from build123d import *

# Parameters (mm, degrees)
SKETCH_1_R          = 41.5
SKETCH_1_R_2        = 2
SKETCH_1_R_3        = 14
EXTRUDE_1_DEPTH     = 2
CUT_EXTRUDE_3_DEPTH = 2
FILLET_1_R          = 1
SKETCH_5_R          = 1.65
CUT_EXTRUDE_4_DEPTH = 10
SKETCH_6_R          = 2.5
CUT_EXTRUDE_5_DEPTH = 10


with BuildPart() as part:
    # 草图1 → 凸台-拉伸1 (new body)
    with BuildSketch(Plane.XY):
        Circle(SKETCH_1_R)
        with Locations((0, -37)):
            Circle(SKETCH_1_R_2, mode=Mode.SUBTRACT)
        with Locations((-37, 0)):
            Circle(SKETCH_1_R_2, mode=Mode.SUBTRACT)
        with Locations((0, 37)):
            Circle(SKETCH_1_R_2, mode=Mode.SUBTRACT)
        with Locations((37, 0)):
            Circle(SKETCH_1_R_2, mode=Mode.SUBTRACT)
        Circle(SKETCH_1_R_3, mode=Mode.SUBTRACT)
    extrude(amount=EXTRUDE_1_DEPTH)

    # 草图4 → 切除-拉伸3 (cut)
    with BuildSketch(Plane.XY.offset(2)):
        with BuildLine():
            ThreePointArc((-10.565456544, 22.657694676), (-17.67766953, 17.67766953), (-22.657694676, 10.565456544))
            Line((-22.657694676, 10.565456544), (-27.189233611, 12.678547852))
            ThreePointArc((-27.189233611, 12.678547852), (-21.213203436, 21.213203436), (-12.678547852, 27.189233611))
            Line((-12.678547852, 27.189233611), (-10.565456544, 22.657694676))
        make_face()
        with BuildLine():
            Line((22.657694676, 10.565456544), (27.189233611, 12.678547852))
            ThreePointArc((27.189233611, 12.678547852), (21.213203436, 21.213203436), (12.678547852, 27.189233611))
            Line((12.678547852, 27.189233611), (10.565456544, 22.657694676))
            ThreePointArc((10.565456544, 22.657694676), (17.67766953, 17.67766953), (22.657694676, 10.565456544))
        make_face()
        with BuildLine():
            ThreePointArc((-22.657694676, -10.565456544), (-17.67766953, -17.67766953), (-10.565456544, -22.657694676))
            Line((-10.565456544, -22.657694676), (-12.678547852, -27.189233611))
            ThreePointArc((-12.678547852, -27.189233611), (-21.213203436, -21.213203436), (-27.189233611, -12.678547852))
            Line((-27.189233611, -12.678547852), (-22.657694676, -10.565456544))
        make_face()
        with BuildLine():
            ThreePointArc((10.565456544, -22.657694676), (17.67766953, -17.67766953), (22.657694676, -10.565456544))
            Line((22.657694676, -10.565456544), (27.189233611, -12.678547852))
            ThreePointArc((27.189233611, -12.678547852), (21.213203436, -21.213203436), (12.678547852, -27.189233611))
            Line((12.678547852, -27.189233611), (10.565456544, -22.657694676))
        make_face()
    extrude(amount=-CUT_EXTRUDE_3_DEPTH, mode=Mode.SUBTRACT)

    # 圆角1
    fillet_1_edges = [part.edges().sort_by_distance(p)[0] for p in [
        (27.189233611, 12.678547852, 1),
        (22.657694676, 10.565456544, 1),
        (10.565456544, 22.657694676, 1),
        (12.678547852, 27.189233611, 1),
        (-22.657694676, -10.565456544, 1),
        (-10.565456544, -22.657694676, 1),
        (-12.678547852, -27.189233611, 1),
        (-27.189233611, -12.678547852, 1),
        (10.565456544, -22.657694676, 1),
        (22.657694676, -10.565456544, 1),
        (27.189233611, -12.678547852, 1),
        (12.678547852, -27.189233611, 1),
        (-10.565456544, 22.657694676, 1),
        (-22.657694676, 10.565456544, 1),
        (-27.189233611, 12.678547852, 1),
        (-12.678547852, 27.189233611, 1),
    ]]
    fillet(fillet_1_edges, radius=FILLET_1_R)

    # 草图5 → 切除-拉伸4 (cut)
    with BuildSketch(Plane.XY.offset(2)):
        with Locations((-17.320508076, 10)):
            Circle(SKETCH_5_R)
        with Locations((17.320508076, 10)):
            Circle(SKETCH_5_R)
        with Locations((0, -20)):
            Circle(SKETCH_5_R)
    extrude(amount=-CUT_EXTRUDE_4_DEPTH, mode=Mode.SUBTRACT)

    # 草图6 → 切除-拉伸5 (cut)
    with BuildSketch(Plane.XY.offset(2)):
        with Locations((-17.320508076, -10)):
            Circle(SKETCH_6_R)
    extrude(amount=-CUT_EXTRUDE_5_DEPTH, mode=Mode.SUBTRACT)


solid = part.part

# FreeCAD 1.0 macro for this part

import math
import FreeCAD as App
import Part
import Sketcher
from FreeCAD import Vector
Q = App.Units.Quantity


def edges_at(feature, points):
    """Names of the edges that pass closest to the given points."""
    edges = feature.Shape.Edges
    near = lambda p: min(range(len(edges)), key=lambda i: edges[i].distToShape(Part.Vertex(*p))[0])
    return sorted({f"Edge{near(p) + 1}" for p in points})

doc = App.newDocument("Part")
body = doc.addObject("PartDesign::Body", "Body")

sketch1 = body.newObject("Sketcher::SketchObject", "Sketch")
sketch1.AttachmentSupport = (doc.getObject("XY_Plane"), [""])
sketch1.MapMode = "FlatFace"
sketch1.addGeometry([
    Part.Circle(Vector(0, 0, 0), Vector(0, 0, 1), 41.5),
    Part.Circle(Vector(0, -37, 0), Vector(0, 0, 1), 2),
    Part.Circle(Vector(-37, 0, 0), Vector(0, 0, 1), 2),
    Part.Circle(Vector(0, 0, 0), Vector(0, 0, 1), 14),
    Part.Circle(Vector(37, 0, 0), Vector(0, 0, 1), 2),
    Part.Circle(Vector(0, 37, 0), Vector(0, 0, 1), 2),
], False)
sketch1.addConstraint([
    Sketcher.Constraint("Coincident", 0, 3, -1, 1),
    Sketcher.Constraint("Coincident", 3, 3, -1, 1),
    Sketcher.Constraint("Equal", 1, 2),
    Sketcher.Constraint("Equal", 2, 4),
    Sketcher.Constraint("Equal", 4, 5),
    Sketcher.Constraint("Symmetric", 2, 3, 4, 3, -1, 1),
    Sketcher.Constraint("Symmetric", 1, 3, 5, 3, -1, 1),
    Sketcher.Constraint("PointOnObject", 1, 3, -2),
    Sketcher.Constraint("PointOnObject", 2, 3, -1),
    Sketcher.Constraint("Diameter", 0, Q("83 mm")),
    Sketcher.Constraint("Diameter", 1, Q("4 mm")),
    Sketcher.Constraint("Diameter", 3, Q("28 mm")),
    Sketcher.Constraint("DistanceY", 1, 3, -1, 1, Q("37 mm")),
    Sketcher.Constraint("DistanceX", 2, 3, -1, 1, Q("37 mm")),
])
pad1 = body.newObject("PartDesign::Pad", "Pad")
pad1.Profile = sketch1
pad1.Length = 2

sketch2 = body.newObject("Sketcher::SketchObject", "Sketch001")
sketch2.AttachmentSupport = (doc.getObject("XY_Plane"), [""])
sketch2.MapMode = "FlatFace"
sketch2.AttachmentOffset = App.Placement(Vector(0, 0, 2), App.Rotation())
sketch2.addGeometry([
    Part.ArcOfCircle(Part.Circle(Vector(0, 0, 0), Vector(0, 0, 1), 25), math.radians(115), math.radians(155)),
    Part.LineSegment(Vector(-10.6, 22.7, 0), Vector(-12.7, 27.2, 0)),
    Part.ArcOfCircle(Part.Circle(Vector(0, 0, 0), Vector(0, 0, 1), 30), math.radians(115), math.radians(155)),
    Part.LineSegment(Vector(-27.2, 12.7, 0), Vector(-22.7, 10.6, 0)),
    Part.LineSegment(Vector(22.7, 10.6, 0), Vector(27.2, 12.7, 0)),
    Part.ArcOfCircle(Part.Circle(Vector(0, 0, 0), Vector(0, 0, 1), 30), math.radians(25), math.radians(65)),
    Part.LineSegment(Vector(12.7, 27.2, 0), Vector(10.6, 22.7, 0)),
    Part.ArcOfCircle(Part.Circle(Vector(0, 0, 0), Vector(0, 0, 1), 25), math.radians(25), math.radians(65)),
    Part.ArcOfCircle(Part.Circle(Vector(0, 0, 0), Vector(0, 0, 1), 25), math.radians(-155), math.radians(-115)),
    Part.LineSegment(Vector(-22.7, -10.6, 0), Vector(-27.2, -12.7, 0)),
    Part.ArcOfCircle(Part.Circle(Vector(0, 0, 0), Vector(0, 0, 1), 30), math.radians(-155), math.radians(-115)),
    Part.LineSegment(Vector(-12.7, -27.2, 0), Vector(-10.6, -22.7, 0)),
    Part.ArcOfCircle(Part.Circle(Vector(0, 0, 0), Vector(0, 0, 1), 25), math.radians(-65), math.radians(-25)),
    Part.LineSegment(Vector(10.6, -22.7, 0), Vector(12.7, -27.2, 0)),
    Part.ArcOfCircle(Part.Circle(Vector(0, 0, 0), Vector(0, 0, 1), 30), math.radians(-65), math.radians(-25)),
    Part.LineSegment(Vector(27.2, -12.7, 0), Vector(22.7, -10.6, 0)),
], False)
sketch2.addConstraint([
    Sketcher.Constraint("Coincident", 0, 1, 1, 1),
    Sketcher.Constraint("Coincident", 1, 2, 2, 1),
    Sketcher.Constraint("Coincident", 2, 2, 3, 1),
    Sketcher.Constraint("Coincident", 3, 2, 0, 2),
    Sketcher.Constraint("Coincident", 4, 2, 5, 1),
    Sketcher.Constraint("Coincident", 5, 2, 6, 1),
    Sketcher.Constraint("Coincident", 6, 2, 7, 2),
    Sketcher.Constraint("Coincident", 7, 1, 4, 1),
    Sketcher.Constraint("Coincident", 8, 1, 9, 1),
    Sketcher.Constraint("Coincident", 9, 2, 10, 1),
    Sketcher.Constraint("Coincident", 10, 2, 11, 1),
    Sketcher.Constraint("Coincident", 11, 2, 8, 2),
    Sketcher.Constraint("Coincident", 12, 1, 13, 1),
    Sketcher.Constraint("Coincident", 13, 2, 14, 1),
    Sketcher.Constraint("Coincident", 14, 2, 15, 1),
    Sketcher.Constraint("Coincident", 15, 2, 12, 2),
    Sketcher.Constraint("Coincident", 0, 3, -1, 1),
    Sketcher.Constraint("Coincident", 2, 3, -1, 1),
    Sketcher.Constraint("Coincident", 5, 3, -1, 1),
    Sketcher.Constraint("Coincident", 7, 3, -1, 1),
    Sketcher.Constraint("Coincident", 8, 3, -1, 1),
    Sketcher.Constraint("Coincident", 10, 3, -1, 1),
    Sketcher.Constraint("Coincident", 12, 3, -1, 1),
    Sketcher.Constraint("Coincident", 14, 3, -1, 1),
    Sketcher.Constraint("Equal", 2, 5),
    Sketcher.Constraint("Equal", 0, 7),
    Sketcher.Constraint("Equal", 7, 8),
    Sketcher.Constraint("Equal", 5, 10),
    Sketcher.Constraint("Equal", 8, 12),
    Sketcher.Constraint("Equal", 10, 14),
    Sketcher.Constraint("Perpendicular", 1, 4),
    Sketcher.Constraint("Perpendicular", 3, 6),
    Sketcher.Constraint("Parallel", 4, 9),
    Sketcher.Constraint("Parallel", 6, 11),
    Sketcher.Constraint("Perpendicular", 9, 13),
    Sketcher.Constraint("Perpendicular", 11, 15),
    Sketcher.Constraint("Horizontal", 2, 2, 4, 2),
    Sketcher.Constraint("Horizontal", 1, 2, 5, 2),
    Sketcher.Constraint("Horizontal", 0, 1, 6, 2),
    Sketcher.Constraint("Horizontal", 11, 2, 12, 1),
    Sketcher.Constraint("Horizontal", 9, 2, 14, 2),
    Sketcher.Constraint("Vertical", 3, 2, 8, 1),
    Sketcher.Constraint("Vertical", 1, 2, 10, 2),
    Sketcher.Constraint("Radius", 0, Q("25 mm")),
    Sketcher.Constraint("Radius", 2, Q("30 mm")),
    Sketcher.Constraint("Angle", 1, Q("115 deg")),
    Sketcher.Constraint("DistanceX", 3, 2, 0, 1, Q("12.092238 mm")),
    Sketcher.Constraint("DistanceY", 3, 2, 0, 1, Q("12.092238 mm")),
])
pocket1 = body.newObject("PartDesign::Pocket", "Pocket")
pocket1.Profile = sketch2
pocket1.Length = 2
doc.recompute()

fillet = body.newObject("PartDesign::Fillet", "Fillet")
fillet.Base = (pocket1, edges_at(pocket1, [
    (27.189, 12.679, 1),
    (22.658, 10.565, 1),
    (10.565, 22.658, 1),
    (12.679, 27.189, 1),
    (-22.658, -10.565, 1),
    (-10.565, -22.658, 1),
    (-12.679, -27.189, 1),
    (-27.189, -12.679, 1),
    (10.565, -22.658, 1),
    (22.658, -10.565, 1),
    (27.189, -12.679, 1),
    (12.679, -27.189, 1),
    (-10.565, 22.658, 1),
    (-22.658, 10.565, 1),
    (-27.189, 12.679, 1),
    (-12.679, 27.189, 1),
]))
fillet.Radius = 1

sketch3 = body.newObject("Sketcher::SketchObject", "Sketch002")
sketch3.AttachmentSupport = (doc.getObject("XY_Plane"), [""])
sketch3.MapMode = "FlatFace"
sketch3.AttachmentOffset = App.Placement(Vector(0, 0, 2), App.Rotation())
sketch3.addGeometry([
    Part.Circle(Vector(-17.3, 10, 0), Vector(0, 0, 1), 1.6),
    Part.Circle(Vector(17.3, 10, 0), Vector(0, 0, 1), 1.6),
    Part.Circle(Vector(0, -20, 0), Vector(0, 0, 1), 1.6),
], False)
sketch3.addConstraint([
    Sketcher.Constraint("Equal", 0, 1),
    Sketcher.Constraint("Equal", 1, 2),
    Sketcher.Constraint("Symmetric", 0, 3, 1, 3, -2),
    Sketcher.Constraint("PointOnObject", 2, 3, -2),
    Sketcher.Constraint("Diameter", 0, Q("3.3 mm")),
    Sketcher.Constraint("DistanceY", -1, 1, 0, 3, Q("10 mm")),
    Sketcher.Constraint("DistanceY", 2, 3, -1, 1, Q("20 mm")),
    Sketcher.Constraint("DistanceX", 0, 3, -1, 1, Q("17.320508 mm")),
])
pocket2 = body.newObject("PartDesign::Pocket", "Pocket001")
pocket2.Profile = sketch3
pocket2.Length = 10

sketch4 = body.newObject("Sketcher::SketchObject", "Sketch003")
sketch4.AttachmentSupport = (doc.getObject("XY_Plane"), [""])
sketch4.MapMode = "FlatFace"
sketch4.AttachmentOffset = App.Placement(Vector(0, 0, 2), App.Rotation())
sketch4.addGeometry(Part.Circle(Vector(-17.3, -10, 0), Vector(0, 0, 1), 2.5), False)
sketch4.addConstraint([
    Sketcher.Constraint("Diameter", 0, Q("5 mm")),
    Sketcher.Constraint("DistanceY", 0, 3, -1, 1, Q("10 mm")),
    Sketcher.Constraint("DistanceX", 0, 3, -1, 1, Q("17.320508 mm")),
])
pocket3 = body.newObject("PartDesign::Pocket", "Pocket002")
pocket3.Profile = sketch4
pocket3.Length = 10

doc.recompute()
